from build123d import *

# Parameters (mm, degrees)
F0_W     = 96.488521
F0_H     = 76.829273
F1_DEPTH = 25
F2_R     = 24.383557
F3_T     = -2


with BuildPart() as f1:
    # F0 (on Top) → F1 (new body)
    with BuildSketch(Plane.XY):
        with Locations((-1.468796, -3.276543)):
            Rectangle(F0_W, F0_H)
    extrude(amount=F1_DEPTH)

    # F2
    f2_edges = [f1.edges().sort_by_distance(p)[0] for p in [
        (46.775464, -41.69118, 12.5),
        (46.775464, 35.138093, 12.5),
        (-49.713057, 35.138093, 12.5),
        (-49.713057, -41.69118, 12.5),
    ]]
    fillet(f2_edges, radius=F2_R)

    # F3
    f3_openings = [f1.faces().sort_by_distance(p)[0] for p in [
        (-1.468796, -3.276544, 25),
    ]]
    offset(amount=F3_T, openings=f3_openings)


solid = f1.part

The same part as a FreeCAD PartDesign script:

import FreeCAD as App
import Part
import Sketcher

V = App.Vector
Q = App.Units.Quantity


def edges_at(feature, points):
    """Names of the edges that pass closest to the given points."""
    edges = feature.Shape.Edges
    near = lambda p: min(range(len(edges)), key=lambda i: edges[i].distToShape(Part.Vertex(*p))[0])
    return sorted({f"Edge{near(p) + 1}" for p in points})


def faces_at(feature, points):
    """Names of the faces that lie closest to the given points."""
    faces = feature.Shape.Faces
    near = lambda p: min(range(len(faces)), key=lambda i: faces[i].distToShape(Part.Vertex(*p))[0])
    return sorted({f"Face{near(p) + 1}" for p in points})


def add_polygon(sketch, points):
    """Adds a closed chain of lines whose ends are joined by coincident constraints."""
    first, n = sketch.GeometryCount, len(points)
    for a, b in zip(points, points[1:] + points[:1]):
        sketch.addGeometry(Part.LineSegment(App.Vector(*a, 0), App.Vector(*b, 0)), False)
    for i in range(n):
        sketch.addConstraint(Sketcher.Constraint("Coincident", first + i, 2, first + (i + 1) % n, 1))

doc = App.newDocument("Part")
body = doc.addObject("PartDesign::Body", "Body")

# Sketch on XY plane
sketch1 = body.newObject("Sketcher::SketchObject", "Sketch")
sketch1.AttachmentSupport = (doc.getObject("XY_Plane"), [""])
sketch1.MapMode = "FlatFace"
add_polygon(sketch1, [(-49.713057, 35.138093), (-49.713057, -41.691179), (46.775464, -41.691179), (46.775464, 35.138093)])  # lines 0-3
sketch1.addConstraint([
    Sketcher.Constraint("Vertical", 0),
    Sketcher.Constraint("Horizontal", 1),
    Sketcher.Constraint("Vertical", 2),
    Sketcher.Constraint("Horizontal", 3),
    Sketcher.Constraint("DistanceX", 1, 1, 1, 2, Q("96.488521 mm")),
    Sketcher.Constraint("DistanceY", 0, 2, 0, 1, Q("76.829273 mm")),
    Sketcher.Constraint("DistanceY", 0, 2, -1, 1, Q("41.691179 mm")),
    Sketcher.Constraint("DistanceX", 0, 2, -1, 1, Q("49.713057 mm")),
])
pad1 = body.newObject("PartDesign::Pad", "Pad")
pad1.Profile = sketch1
pad1.Length = 25
doc.recompute()

fillet = body.newObject("PartDesign::Fillet", "Fillet")
fillet.Base = (pad1, edges_at(pad1, [
    (46.775, -41.691, 12.5),
    (46.775, 35.138, 12.5),
    (-49.713, 35.138, 12.5),
    (-49.713, -41.691, 12.5),
]))
fillet.Radius = 24.383557
doc.recompute()

thickness = body.newObject("PartDesign::Thickness", "Thickness")
thickness.Base = (fillet, faces_at(fillet, [(-1.469, -3.277, 25)]))
thickness.Value = 2
thickness.Reversed = True
thickness.Join = "Arc"

doc.recompute()
